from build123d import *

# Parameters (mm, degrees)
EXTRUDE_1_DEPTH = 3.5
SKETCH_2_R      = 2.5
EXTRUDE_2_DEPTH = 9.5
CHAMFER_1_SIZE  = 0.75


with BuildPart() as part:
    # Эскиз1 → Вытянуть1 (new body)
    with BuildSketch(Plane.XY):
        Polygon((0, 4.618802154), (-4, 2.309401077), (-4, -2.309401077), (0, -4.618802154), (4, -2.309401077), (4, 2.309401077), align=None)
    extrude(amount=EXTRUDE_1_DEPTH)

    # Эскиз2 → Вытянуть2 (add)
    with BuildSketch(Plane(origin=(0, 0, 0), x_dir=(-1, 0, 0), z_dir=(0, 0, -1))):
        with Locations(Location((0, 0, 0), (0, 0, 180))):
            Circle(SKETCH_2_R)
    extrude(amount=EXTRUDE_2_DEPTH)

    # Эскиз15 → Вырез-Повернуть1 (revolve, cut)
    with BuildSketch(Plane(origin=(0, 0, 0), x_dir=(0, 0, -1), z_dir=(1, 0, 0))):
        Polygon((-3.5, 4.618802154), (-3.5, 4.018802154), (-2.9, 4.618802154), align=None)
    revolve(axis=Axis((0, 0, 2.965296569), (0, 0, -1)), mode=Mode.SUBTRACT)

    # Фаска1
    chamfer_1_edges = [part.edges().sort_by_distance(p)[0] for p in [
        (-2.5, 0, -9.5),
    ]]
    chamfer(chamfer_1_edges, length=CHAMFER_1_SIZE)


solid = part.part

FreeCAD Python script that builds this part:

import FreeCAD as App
import Part
import Sketcher

V = App.Vector
Q = App.Units.Quantity


def edges_at(feature, points):
    """Names of the edges that pass closest to the given points."""
    edges = feature.Shape.Edges
    near = lambda p: min(range(len(edges)), key=lambda i: edges[i].distToShape(Part.Vertex(*p))[0])
    return sorted({f"Edge{near(p) + 1}" for p in points})


def add_polygon(sketch, points):
    """Adds a closed chain of lines whose ends are joined by coincident constraints."""
    first, n = sketch.GeometryCount, len(points)
    for a, b in zip(points, points[1:] + points[:1]):
        sketch.addGeometry(Part.LineSegment(App.Vector(*a, 0), App.Vector(*b, 0)), False)
    for i in range(n):
        sketch.addConstraint(Sketcher.Constraint("Coincident", first + i, 2, first + (i + 1) % n, 1))

doc = App.newDocument("Part")
params = doc.addObject("Spreadsheet::Sheet", "Params")
for row, (alias, value) in enumerate([
    ("pad1_length", "3.5 mm"),
    ("sketch2_diameter", "5 mm"),
    ("pad2_length", "9.5 mm"),
    ("sketch3_width", "0.6 mm"),
    ("groove_angle", "360 deg"),
    ("chamfer_size", "0.75 mm"),
], start=1):
    params.set(f"A{row}", alias)
    params.set(f"B{row}", "=" + value)
    params.setAlias(f"B{row}", alias)

body = doc.addObject("PartDesign::Body", "Body")

sketch1 = body.newObject("Sketcher::SketchObject", "Sketch")
sketch1.AttachmentSupport = (doc.getObject("XY_Plane"), [""])
sketch1.MapMode = "FlatFace"
add_polygon(sketch1, [(0, 4.618802), (-4, 2.309401), (-4, -2.309401), (0, -4.618802), (4, -2.309401), (4, 2.309401)])
sketch1.addConstraint([
    Sketcher.Constraint("Vertical", 1),
    Sketcher.Constraint("Vertical", 4),
    Sketcher.Constraint("Symmetric", 0, 2, 3, 2, -1, 1),
    Sketcher.Constraint("Symmetric", 2, 2, 5, 2, -1, 1),
    Sketcher.Constraint("PointOnObject", 2, 2, -2),
    Sketcher.Constraint("Parallel", 2, 5),
    Sketcher.Constraint("Horizontal", 1, 2, 3, 2),
    Sketcher.Constraint("Angle", 0, Q("-150 deg")),
    Sketcher.Constraint("DistanceX", 0, 2, -1, 1, 4.0),
    Sketcher.Constraint("DistanceY", -1, 1, 0, 2, 2.309401),
])
pad1 = body.newObject("PartDesign::Pad", "Pad")
pad1.Profile = sketch1
pad1.setExpression("Length", "Params.pad1_length")

sketch2 = body.newObject("Sketcher::SketchObject", "Sketch001")
sketch2.AttachmentSupport = (doc.getObject("XY_Plane"), [""])
sketch2.MapMode = "FlatFace"
sketch2.addGeometry(Part.Circle(V(0, 0, 0), V(0, 0, 1), 2.5), False)
sketch2.addConstraint([
    Sketcher.Constraint("Coincident", 0, 3, -1, 1),
    Sketcher.Constraint("Diameter", 0, 5.0),
])
sketch2.setExpression("Constraints[1]", "Params.sketch2_diameter")
pad2 = body.newObject("PartDesign::Pad", "Pad001")
pad2.Profile = sketch2
pad2.setExpression("Length", "Params.pad2_length")
pad2.Reversed = True

sketch3 = body.newObject("Sketcher::SketchObject", "Sketch002")
sketch3.AttachmentSupport = (doc.getObject("YZ_Plane"), [""])
sketch3.MapMode = "FlatFace"
add_polygon(sketch3, [(4.618802, 3.5), (4.018802, 3.5), (4.618802, 2.9)])
sketch3.addConstraint([
    Sketcher.Constraint("Horizontal", 0),
    Sketcher.Constraint("Vertical", 2),
    Sketcher.Constraint("Equal", 0, 2),
    Sketcher.Constraint("DistanceX", 0, 2, 0, 1, 0.6),
    Sketcher.Constraint("DistanceY", -1, 1, 0, 2, 3.5),
    Sketcher.Constraint("DistanceX", -1, 1, 0, 2, 4.018802),
])
sketch3.setExpression("Constraints[6]", "Params.sketch3_width")
groove = body.newObject("PartDesign::Groove", "Groove")
groove.Profile = sketch3
groove.ReferenceAxis = (sketch3, ["V_Axis"])
groove.setExpression("Angle", "Params.groove_angle")
doc.recompute()

chamfer = body.newObject("PartDesign::Chamfer", "Chamfer")
chamfer.Base = (groove, edges_at(groove, [(-2.5, 0, -9.5)]))
chamfer.setExpression("Size", "Params.chamfer_size")

doc.recompute()
